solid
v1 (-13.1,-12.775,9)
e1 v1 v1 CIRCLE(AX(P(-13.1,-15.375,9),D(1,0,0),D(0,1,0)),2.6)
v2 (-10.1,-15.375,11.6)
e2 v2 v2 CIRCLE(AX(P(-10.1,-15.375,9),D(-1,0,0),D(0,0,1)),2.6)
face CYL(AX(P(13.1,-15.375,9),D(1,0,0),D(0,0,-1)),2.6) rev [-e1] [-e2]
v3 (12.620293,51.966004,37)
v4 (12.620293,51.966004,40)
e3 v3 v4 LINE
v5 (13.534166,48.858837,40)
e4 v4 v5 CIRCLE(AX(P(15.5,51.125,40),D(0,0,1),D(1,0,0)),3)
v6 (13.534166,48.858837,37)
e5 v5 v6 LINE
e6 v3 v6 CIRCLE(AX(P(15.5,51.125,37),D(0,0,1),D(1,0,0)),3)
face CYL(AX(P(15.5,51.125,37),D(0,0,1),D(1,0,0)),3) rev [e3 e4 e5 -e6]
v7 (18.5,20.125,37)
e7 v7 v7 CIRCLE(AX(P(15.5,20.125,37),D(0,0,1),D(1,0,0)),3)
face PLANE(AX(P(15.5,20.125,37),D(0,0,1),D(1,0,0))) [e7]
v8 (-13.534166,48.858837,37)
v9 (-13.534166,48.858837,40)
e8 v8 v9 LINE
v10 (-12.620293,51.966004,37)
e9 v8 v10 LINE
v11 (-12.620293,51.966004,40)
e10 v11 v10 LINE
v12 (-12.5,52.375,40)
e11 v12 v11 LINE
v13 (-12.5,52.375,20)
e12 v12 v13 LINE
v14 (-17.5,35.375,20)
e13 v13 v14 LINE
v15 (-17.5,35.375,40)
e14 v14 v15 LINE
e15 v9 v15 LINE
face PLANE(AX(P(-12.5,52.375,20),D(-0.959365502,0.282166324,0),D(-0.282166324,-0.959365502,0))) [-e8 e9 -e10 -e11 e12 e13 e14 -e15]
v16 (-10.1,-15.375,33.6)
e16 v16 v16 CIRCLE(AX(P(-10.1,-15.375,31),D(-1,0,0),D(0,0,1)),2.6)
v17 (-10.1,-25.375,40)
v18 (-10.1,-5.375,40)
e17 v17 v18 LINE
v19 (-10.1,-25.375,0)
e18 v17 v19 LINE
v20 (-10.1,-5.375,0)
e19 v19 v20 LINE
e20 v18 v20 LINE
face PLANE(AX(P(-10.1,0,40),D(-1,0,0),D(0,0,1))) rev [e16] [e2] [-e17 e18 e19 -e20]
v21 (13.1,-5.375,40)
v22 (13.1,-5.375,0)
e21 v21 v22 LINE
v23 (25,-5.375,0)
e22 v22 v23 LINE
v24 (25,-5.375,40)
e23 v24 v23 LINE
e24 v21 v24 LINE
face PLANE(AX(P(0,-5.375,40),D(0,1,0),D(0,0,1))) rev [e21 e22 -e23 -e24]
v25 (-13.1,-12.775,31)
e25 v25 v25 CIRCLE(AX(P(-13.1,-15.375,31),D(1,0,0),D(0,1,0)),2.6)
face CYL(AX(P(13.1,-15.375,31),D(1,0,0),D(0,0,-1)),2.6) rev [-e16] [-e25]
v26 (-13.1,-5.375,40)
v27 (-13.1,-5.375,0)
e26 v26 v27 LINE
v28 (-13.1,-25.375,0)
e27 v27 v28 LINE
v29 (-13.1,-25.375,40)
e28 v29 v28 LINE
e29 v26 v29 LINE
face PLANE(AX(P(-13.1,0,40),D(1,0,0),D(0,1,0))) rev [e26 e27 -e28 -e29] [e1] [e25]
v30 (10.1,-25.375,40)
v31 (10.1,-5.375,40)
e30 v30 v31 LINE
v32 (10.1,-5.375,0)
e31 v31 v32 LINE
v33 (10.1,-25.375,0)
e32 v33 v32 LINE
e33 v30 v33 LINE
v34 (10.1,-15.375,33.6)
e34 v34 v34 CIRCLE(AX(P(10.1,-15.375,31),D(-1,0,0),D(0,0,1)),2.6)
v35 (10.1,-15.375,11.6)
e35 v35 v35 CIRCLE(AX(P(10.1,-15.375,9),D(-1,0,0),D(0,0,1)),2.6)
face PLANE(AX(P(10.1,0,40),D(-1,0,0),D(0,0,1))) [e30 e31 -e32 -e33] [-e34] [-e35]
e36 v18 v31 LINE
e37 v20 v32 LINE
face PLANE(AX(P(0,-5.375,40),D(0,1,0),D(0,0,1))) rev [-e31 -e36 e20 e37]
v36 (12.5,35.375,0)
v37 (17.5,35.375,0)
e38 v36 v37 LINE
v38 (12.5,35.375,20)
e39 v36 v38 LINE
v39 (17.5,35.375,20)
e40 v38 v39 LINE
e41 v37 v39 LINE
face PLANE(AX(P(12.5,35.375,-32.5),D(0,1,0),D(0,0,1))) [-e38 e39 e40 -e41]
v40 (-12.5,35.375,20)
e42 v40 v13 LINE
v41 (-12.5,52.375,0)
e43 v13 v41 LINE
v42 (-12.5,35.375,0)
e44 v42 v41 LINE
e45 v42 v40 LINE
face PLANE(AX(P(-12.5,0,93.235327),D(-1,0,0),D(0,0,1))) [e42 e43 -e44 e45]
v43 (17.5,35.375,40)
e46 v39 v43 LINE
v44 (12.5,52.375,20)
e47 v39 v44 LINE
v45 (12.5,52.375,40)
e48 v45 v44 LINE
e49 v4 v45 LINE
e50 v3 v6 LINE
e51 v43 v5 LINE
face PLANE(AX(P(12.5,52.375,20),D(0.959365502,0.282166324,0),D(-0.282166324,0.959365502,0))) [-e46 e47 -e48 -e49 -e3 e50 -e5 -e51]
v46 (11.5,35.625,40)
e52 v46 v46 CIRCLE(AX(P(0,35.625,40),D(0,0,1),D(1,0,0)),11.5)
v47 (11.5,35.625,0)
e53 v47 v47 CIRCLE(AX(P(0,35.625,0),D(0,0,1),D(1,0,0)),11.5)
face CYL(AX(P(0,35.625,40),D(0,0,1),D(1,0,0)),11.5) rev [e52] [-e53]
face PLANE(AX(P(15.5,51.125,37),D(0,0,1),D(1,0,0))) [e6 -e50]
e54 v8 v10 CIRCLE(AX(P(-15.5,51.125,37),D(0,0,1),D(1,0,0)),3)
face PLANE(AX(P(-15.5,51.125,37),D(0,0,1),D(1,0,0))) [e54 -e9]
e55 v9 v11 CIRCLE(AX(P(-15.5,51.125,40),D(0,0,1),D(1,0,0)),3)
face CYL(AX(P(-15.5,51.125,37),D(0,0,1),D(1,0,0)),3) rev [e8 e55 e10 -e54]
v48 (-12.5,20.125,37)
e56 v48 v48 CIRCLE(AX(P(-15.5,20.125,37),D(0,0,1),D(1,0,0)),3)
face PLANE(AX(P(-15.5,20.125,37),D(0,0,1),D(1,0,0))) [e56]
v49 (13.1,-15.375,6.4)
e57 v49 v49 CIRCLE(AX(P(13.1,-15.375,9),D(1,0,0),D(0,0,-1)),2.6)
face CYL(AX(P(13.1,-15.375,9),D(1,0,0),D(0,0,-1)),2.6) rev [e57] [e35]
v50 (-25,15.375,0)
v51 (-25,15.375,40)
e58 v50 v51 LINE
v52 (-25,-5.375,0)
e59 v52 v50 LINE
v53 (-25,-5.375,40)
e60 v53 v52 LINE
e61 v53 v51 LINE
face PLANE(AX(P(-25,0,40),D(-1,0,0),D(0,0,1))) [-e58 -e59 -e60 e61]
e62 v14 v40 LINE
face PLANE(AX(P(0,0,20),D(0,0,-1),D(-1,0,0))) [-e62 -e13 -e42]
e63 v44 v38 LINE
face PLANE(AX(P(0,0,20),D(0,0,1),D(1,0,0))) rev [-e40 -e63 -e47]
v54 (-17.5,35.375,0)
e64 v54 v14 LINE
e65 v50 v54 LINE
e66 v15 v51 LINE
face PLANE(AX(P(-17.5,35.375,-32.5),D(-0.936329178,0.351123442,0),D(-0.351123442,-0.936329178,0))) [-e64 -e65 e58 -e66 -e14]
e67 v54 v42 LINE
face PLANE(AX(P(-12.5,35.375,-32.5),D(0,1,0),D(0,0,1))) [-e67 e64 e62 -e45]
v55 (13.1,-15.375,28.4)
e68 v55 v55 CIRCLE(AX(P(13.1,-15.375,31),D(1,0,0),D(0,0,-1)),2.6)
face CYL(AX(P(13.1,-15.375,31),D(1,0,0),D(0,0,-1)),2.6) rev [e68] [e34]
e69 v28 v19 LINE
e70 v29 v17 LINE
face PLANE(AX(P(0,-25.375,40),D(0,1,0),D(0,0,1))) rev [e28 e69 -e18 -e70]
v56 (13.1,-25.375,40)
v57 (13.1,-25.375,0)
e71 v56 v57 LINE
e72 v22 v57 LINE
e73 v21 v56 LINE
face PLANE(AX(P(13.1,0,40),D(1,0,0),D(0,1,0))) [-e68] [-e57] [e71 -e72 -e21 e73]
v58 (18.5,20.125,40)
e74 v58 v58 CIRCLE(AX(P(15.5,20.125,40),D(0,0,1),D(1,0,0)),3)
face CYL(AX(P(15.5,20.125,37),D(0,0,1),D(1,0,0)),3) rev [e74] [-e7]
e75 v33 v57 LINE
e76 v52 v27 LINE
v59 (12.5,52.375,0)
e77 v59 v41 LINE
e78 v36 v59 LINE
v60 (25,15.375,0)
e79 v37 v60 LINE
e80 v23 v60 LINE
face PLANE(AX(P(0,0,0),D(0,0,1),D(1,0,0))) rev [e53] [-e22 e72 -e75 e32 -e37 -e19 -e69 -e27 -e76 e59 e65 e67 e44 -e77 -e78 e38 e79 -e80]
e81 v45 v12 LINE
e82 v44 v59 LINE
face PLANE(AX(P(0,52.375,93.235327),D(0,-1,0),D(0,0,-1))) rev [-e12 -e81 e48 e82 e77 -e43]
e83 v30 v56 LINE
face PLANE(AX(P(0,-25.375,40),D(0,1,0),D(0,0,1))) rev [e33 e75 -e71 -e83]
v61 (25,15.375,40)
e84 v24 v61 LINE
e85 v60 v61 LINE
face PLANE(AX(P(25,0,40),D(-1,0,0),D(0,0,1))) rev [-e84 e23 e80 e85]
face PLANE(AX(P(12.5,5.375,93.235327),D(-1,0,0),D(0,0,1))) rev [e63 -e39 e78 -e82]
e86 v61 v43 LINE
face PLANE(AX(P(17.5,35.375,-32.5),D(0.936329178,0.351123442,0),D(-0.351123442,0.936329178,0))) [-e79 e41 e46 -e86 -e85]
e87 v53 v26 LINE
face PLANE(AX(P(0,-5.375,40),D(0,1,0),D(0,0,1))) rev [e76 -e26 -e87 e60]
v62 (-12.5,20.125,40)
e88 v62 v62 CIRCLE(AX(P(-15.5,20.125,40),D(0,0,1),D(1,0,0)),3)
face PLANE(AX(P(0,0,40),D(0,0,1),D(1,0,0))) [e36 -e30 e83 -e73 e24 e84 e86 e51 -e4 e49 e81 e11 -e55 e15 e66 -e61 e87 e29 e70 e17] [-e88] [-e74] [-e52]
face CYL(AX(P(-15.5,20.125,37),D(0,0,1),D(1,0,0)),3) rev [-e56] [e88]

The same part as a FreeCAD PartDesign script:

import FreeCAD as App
import Part
import Sketcher
from FreeCAD import Vector
Q = App.Units.Quantity

doc = App.newDocument("Part")
body = doc.addObject("PartDesign::Body", "Body")

sketch1 = body.newObject("Sketcher::SketchObject", "Sketch")
sketch1.AttachmentSupport = (doc.getObject("XY_Plane"), [""])
sketch1.MapMode = "FlatFace"
sketch1.addGeometry(Part.LineSegment(Vector(13.1, -25.4, 0), Vector(13.1, -5.4, 0)), False)
sketch1.addGeometry(Part.LineSegment(Vector(13.1, -5.4, 0), Vector(25, -5.4, 0)), False)
sketch1.addGeometry(Part.LineSegment(Vector(25, -5.4, 0), Vector(25, 5.4, 0)), False)
sketch1.addGeometry(Part.LineSegment(Vector(25, 5.4, 0), Vector(-25, 5.4, 0)), False)
sketch1.addGeometry(Part.LineSegment(Vector(-25, 5.4, 0), Vector(-25, -5.4, 0)), False)
sketch1.addGeometry(Part.LineSegment(Vector(-25, -5.4, 0), Vector(-13.1, -5.4, 0)), False)
sketch1.addGeometry(Part.LineSegment(Vector(-13.1, -5.4, 0), Vector(-13.1, -25.4, 0)), False)
sketch1.addGeometry(Part.LineSegment(Vector(-13.1, -25.4, 0), Vector(-10.1, -25.4, 0)), False)
sketch1.addGeometry(Part.LineSegment(Vector(-10.1, -25.4, 0), Vector(-10.1, -5.4, 0)), False)
sketch1.addGeometry(Part.LineSegment(Vector(-10.1, -5.4, 0), Vector(10.1, -5.4, 0)), False)
sketch1.addGeometry(Part.LineSegment(Vector(10.1, -5.4, 0), Vector(10.1, -25.4, 0)), False)
sketch1.addGeometry(Part.LineSegment(Vector(10.1, -25.4, 0), Vector(13.1, -25.4, 0)), False)
sketch1.addConstraint(Sketcher.Constraint("Coincident", 0, 2, 1, 1))
sketch1.addConstraint(Sketcher.Constraint("Coincident", 1, 2, 2, 1))
sketch1.addConstraint(Sketcher.Constraint("Coincident", 2, 2, 3, 1))
sketch1.addConstraint(Sketcher.Constraint("Coincident", 3, 2, 4, 1))
sketch1.addConstraint(Sketcher.Constraint("Coincident", 4, 2, 5, 1))
sketch1.addConstraint(Sketcher.Constraint("Coincident", 5, 2, 6, 1))
sketch1.addConstraint(Sketcher.Constraint("Coincident", 6, 2, 7, 1))
sketch1.addConstraint(Sketcher.Constraint("Coincident", 7, 2, 8, 1))
sketch1.addConstraint(Sketcher.Constraint("Coincident", 8, 2, 9, 1))
sketch1.addConstraint(Sketcher.Constraint("Coincident", 9, 2, 10, 1))
sketch1.addConstraint(Sketcher.Constraint("Coincident", 10, 2, 11, 1))
sketch1.addConstraint(Sketcher.Constraint("Coincident", 11, 2, 0, 1))
sketch1.addConstraint(Sketcher.Constraint("Vertical", 0))
sketch1.addConstraint(Sketcher.Constraint("Horizontal", 1))
sketch1.addConstraint(Sketcher.Constraint("Vertical", 2))
sketch1.addConstraint(Sketcher.Constraint("Horizontal", 3))
sketch1.addConstraint(Sketcher.Constraint("Vertical", 4))
sketch1.addConstraint(Sketcher.Constraint("Horizontal", 5))
sketch1.addConstraint(Sketcher.Constraint("Vertical", 6))
sketch1.addConstraint(Sketcher.Constraint("Horizontal", 7))
sketch1.addConstraint(Sketcher.Constraint("Vertical", 8))
sketch1.addConstraint(Sketcher.Constraint("Horizontal", 9))
sketch1.addConstraint(Sketcher.Constraint("Vertical", 10))
sketch1.addConstraint(Sketcher.Constraint("Horizontal", 11))
sketch1.addConstraint(Sketcher.Constraint("Symmetric", 1, 2, 3, 2, -1, 1))
sketch1.addConstraint(Sketcher.Constraint("Symmetric", 0, 2, 5, 2, -2))
sketch1.addConstraint(Sketcher.Constraint("Symmetric", 7, 2, 10, 2, -2))
sketch1.addConstraint(Sketcher.Constraint("Horizontal", 5, 2, 8, 2))
sketch1.addConstraint(Sketcher.Constraint("DistanceX", 3, 2, 3, 1, Q("50 mm")))
sketch1.addConstraint(Sketcher.Constraint("DistanceX", 7, 1, 7, 2, Q("3 mm")))
sketch1.addConstraint(Sketcher.Constraint("DistanceY", 0, 1, 0, 2, Q("20 mm")))
sketch1.addConstraint(Sketcher.Constraint("DistanceX", 1, 1, 1, 2, Q("11.9 mm")))
sketch1.addConstraint(Sketcher.Constraint("DistanceY", 2, 1, 2, 2, Q("10.75 mm")))
pad1 = body.newObject("PartDesign::Pad", "Pad")
pad1.Profile = sketch1
pad1.Length = 40

sketch2 = body.newObject("Sketcher::SketchObject", "Sketch001")
sketch2.AttachmentSupport = (doc.getObject("XY_Plane"), [""])
sketch2.MapMode = "FlatFace"
sketch2.addGeometry(Part.LineSegment(Vector(12, 52, 0), Vector(12, 5, 0)), False)
sketch2.addGeometry(Part.LineSegment(Vector(12, 5, 0), Vector(-12, 5, 0)), False)
sketch2.addGeometry(Part.LineSegment(Vector(-12, 5, 0), Vector(-12, 52, 0)), False)
sketch2.addGeometry(Part.LineSegment(Vector(-12, 52, 0), Vector(12, 52, 0)), False)
sketch2.addConstraint(Sketcher.Constraint("Coincident", 0, 2, 1, 1))
sketch2.addConstraint(Sketcher.Constraint("Coincident", 1, 2, 2, 1))
sketch2.addConstraint(Sketcher.Constraint("Coincident", 2, 2, 3, 1))
sketch2.addConstraint(Sketcher.Constraint("Coincident", 3, 2, 0, 1))
sketch2.addConstraint(Sketcher.Constraint("Vertical", 0))
sketch2.addConstraint(Sketcher.Constraint("Horizontal", 1))
sketch2.addConstraint(Sketcher.Constraint("Vertical", 2))
sketch2.addConstraint(Sketcher.Constraint("Horizontal", 3))
sketch2.addConstraint(Sketcher.Constraint("DistanceX", 1, 2, 1, 1, Q("25 mm")))
sketch2.addConstraint(Sketcher.Constraint("DistanceY", 0, 2, 0, 1, Q("47 mm")))
sketch2.addConstraint(Sketcher.Constraint("DistanceX", -1, 1, 0, 2, Q("12.5 mm")))
sketch2.addConstraint(Sketcher.Constraint("DistanceY", -1, 1, 0, 2, Q("5.375 mm")))
pad2 = body.newObject("PartDesign::Pad", "Pad001")
pad2.Profile = sketch2
pad2.Length = 40

sketch3 = body.newObject("Sketcher::SketchObject", "Sketch002")
sketch3.AttachmentSupport = (doc.getObject("XY_Plane"), [""])
sketch3.MapMode = "FlatFace"
sketch3.AttachmentOffset = App.Placement(Vector(0, 0, 40), App.Rotation())
sketch3.addGeometry(Part.Circle(Vector(0, 36, 0), Vector(0, 0, 1), 12), False)
sketch3.addConstraint(Sketcher.Constraint("PointOnObject", 0, 3, -2))
sketch3.addConstraint(Sketcher.Constraint("Diameter", 0, Q("23 mm")))
sketch3.addConstraint(Sketcher.Constraint("DistanceY", -1, 1, 0, 3, Q("35.625 mm")))
doc.recompute()
hole = body.newObject("PartDesign::Hole", "Hole")
hole.Profile = sketch3
hole.ThreadType = "None"
hole.Diameter = 23
hole.DepthType = "ThroughAll"

sketch4 = body.newObject("Sketcher::SketchObject", "Sketch003")
sketch4.AttachmentSupport = (doc.getObject("XY_Plane"), [""])
sketch4.MapMode = "FlatFace"
sketch4.AttachmentOffset = App.Placement(Vector(0, 0, 40), App.Rotation())
sketch4.addGeometry(Part.LineSegment(Vector(18, 35, 0), Vector(12, 35, 0)), False)
sketch4.addGeometry(Part.LineSegment(Vector(12, 35, 0), Vector(12, 5, 0)), False)
sketch4.addGeometry(Part.LineSegment(Vector(12, 5, 0), Vector(25, 5, 0)), False)
sketch4.addGeometry(Part.LineSegment(Vector(25, 5, 0), Vector(25, 15, 0)), False)
sketch4.addGeometry(Part.LineSegment(Vector(25, 15, 0), Vector(18, 35, 0)), False)
sketch4.addGeometry(Part.LineSegment(Vector(-12, 5, 0), Vector(-12, 35, 0)), False)
sketch4.addGeometry(Part.LineSegment(Vector(-12, 35, 0), Vector(-18, 35, 0)), False)
sketch4.addGeometry(Part.LineSegment(Vector(-18, 35, 0), Vector(-25, 15, 0)), False)
sketch4.addGeometry(Part.LineSegment(Vector(-25, 15, 0), Vector(-25, 5, 0)), False)
sketch4.addGeometry(Part.LineSegment(Vector(-25, 5, 0), Vector(-12, 5, 0)), False)
sketch4.addConstraint(Sketcher.Constraint("Coincident", 0, 2, 1, 1))
sketch4.addConstraint(Sketcher.Constraint("Coincident", 1, 2, 2, 1))
sketch4.addConstraint(Sketcher.Constraint("Coincident", 2, 2, 3, 1))
sketch4.addConstraint(Sketcher.Constraint("Coincident", 3, 2, 4, 1))
sketch4.addConstraint(Sketcher.Constraint("Coincident", 4, 2, 0, 1))
sketch4.addConstraint(Sketcher.Constraint("Coincident", 5, 2, 6, 1))
sketch4.addConstraint(Sketcher.Constraint("Coincident", 6, 2, 7, 1))
sketch4.addConstraint(Sketcher.Constraint("Coincident", 7, 2, 8, 1))
sketch4.addConstraint(Sketcher.Constraint("Coincident", 8, 2, 9, 1))
sketch4.addConstraint(Sketcher.Constraint("Coincident", 9, 2, 5, 1))
sketch4.addConstraint(Sketcher.Constraint("Horizontal", 0))
sketch4.addConstraint(Sketcher.Constraint("Vertical", 1))
sketch4.addConstraint(Sketcher.Constraint("Horizontal", 2))
sketch4.addConstraint(Sketcher.Constraint("Vertical", 3))
sketch4.addConstraint(Sketcher.Constraint("Vertical", 5))
sketch4.addConstraint(Sketcher.Constraint("Horizontal", 6))
sketch4.addConstraint(Sketcher.Constraint("Vertical", 8))
sketch4.addConstraint(Sketcher.Constraint("Horizontal", 9))
sketch4.addConstraint(Sketcher.Constraint("Symmetric", 0, 2, 5, 2, -2))
sketch4.addConstraint(Sketcher.Constraint("Symmetric", 3, 2, 7, 2, -2))
sketch4.addConstraint(Sketcher.Constraint("Horizontal", 2, 2, 8, 2))
sketch4.addConstraint(Sketcher.Constraint("Equal", 0, 6))
sketch4.addConstraint(Sketcher.Constraint("DistanceX", 0, 2, 0, 1, Q("5 mm")))
sketch4.addConstraint(Sketcher.Constraint("DistanceY", 1, 2, 1, 1, Q("30 mm")))
sketch4.addConstraint(Sketcher.Constraint("DistanceY", 3, 1, 3, 2, Q("10 mm")))
sketch4.addConstraint(Sketcher.Constraint("DistanceX", 2, 1, 2, 2, Q("12.5 mm")))
sketch4.addConstraint(Sketcher.Constraint("DistanceX", -1, 1, 2, 2, Q("25 mm")))
sketch4.addConstraint(Sketcher.Constraint("DistanceY", -1, 1, 0, 2, Q("35.375 mm")))
pad3 = body.newObject("PartDesign::Pad", "Pad002")
pad3.Profile = sketch4
pad3.Length = 40
pad3.Reversed = True

sketch5 = body.newObject("Sketcher::SketchObject", "Sketch004")
sketch5.AttachmentSupport = (doc.getObject("XY_Plane"), [""])
sketch5.MapMode = "FlatFace"
sketch5.AttachmentOffset = App.Placement(Vector(0, 0, 40), App.Rotation())
sketch5.addGeometry(Part.LineSegment(Vector(18, 35, 0), Vector(12, 52, 0)), False)
sketch5.addGeometry(Part.LineSegment(Vector(12, 52, 0), Vector(12, 35, 0)), False)
sketch5.addGeometry(Part.LineSegment(Vector(12, 35, 0), Vector(18, 35, 0)), False)
sketch5.addGeometry(Part.LineSegment(Vector(-12, 52, 0), Vector(-18, 35, 0)), False)
sketch5.addGeometry(Part.LineSegment(Vector(-18, 35, 0), Vector(-12, 35, 0)), False)
sketch5.addGeometry(Part.LineSegment(Vector(-12, 35, 0), Vector(-12, 52, 0)), False)
sketch5.addConstraint(Sketcher.Constraint("Coincident", 0, 2, 1, 1))
sketch5.addConstraint(Sketcher.Constraint("Coincident", 1, 2, 2, 1))
sketch5.addConstraint(Sketcher.Constraint("Coincident", 2, 2, 0, 1))
sketch5.addConstraint(Sketcher.Constraint("Coincident", 3, 2, 4, 1))
sketch5.addConstraint(Sketcher.Constraint("Coincident", 4, 2, 5, 1))
sketch5.addConstraint(Sketcher.Constraint("Coincident", 5, 2, 3, 1))
sketch5.addConstraint(Sketcher.Constraint("Vertical", 1))
sketch5.addConstraint(Sketcher.Constraint("Horizontal", 2))
sketch5.addConstraint(Sketcher.Constraint("Horizontal", 4))
sketch5.addConstraint(Sketcher.Constraint("Vertical", 5))
sketch5.addConstraint(Sketcher.Constraint("Symmetric", 2, 2, 3, 2, -2))
sketch5.addConstraint(Sketcher.Constraint("Symmetric", 0, 2, 5, 2, -2))
sketch5.addConstraint(Sketcher.Constraint("DistanceX", 2, 1, 2, 2, Q("5 mm")))
sketch5.addConstraint(Sketcher.Constraint("DistanceY", 1, 2, 1, 1, Q("17 mm")))
sketch5.addConstraint(Sketcher.Constraint("DistanceX", 3, 2, 1, 2, Q("30 mm")))
sketch5.addConstraint(Sketcher.Constraint("DistanceY", -1, 1, 0, 2, Q("52.375 mm")))
pad4 = body.newObject("PartDesign::Pad", "Pad003")
pad4.Profile = sketch5
pad4.Length = 20
pad4.Reversed = True

sketch6 = body.newObject("Sketcher::SketchObject", "Sketch005")
sketch6.AttachmentSupport = (doc.getObject("YZ_Plane"), [""])
sketch6.MapMode = "FlatFace"
sketch6.AttachmentOffset = App.Placement(Vector(0, 0, 13.1), App.Rotation())
sketch6.addGeometry(Part.Circle(Vector(-15.4, 31, 0), Vector(0, 0, 1), 2.6), False)
sketch6.addGeometry(Part.Circle(Vector(-15.4, 9, 0), Vector(0, 0, 1), 2.6), False)
sketch6.addConstraint(Sketcher.Constraint("Equal", 0, 1))
sketch6.addConstraint(Sketcher.Constraint("Vertical", 0, 3, 1, 3))
sketch6.addConstraint(Sketcher.Constraint("Diameter", 0, Q("5.2 mm")))
sketch6.addConstraint(Sketcher.Constraint("DistanceY", -1, 1, 0, 3, Q("31 mm")))
sketch6.addConstraint(Sketcher.Constraint("DistanceY", -1, 1, 1, 3, Q("9 mm")))
sketch6.addConstraint(Sketcher.Constraint("DistanceX", 0, 3, -1, 1, Q("15.375 mm")))
doc.recompute()
hole2 = body.newObject("PartDesign::Hole", "Hole001")
hole2.Profile = sketch6
hole2.ThreadType = "None"
hole2.Diameter = 5.2
hole2.DepthType = "ThroughAll"

sketch7 = body.newObject("Sketcher::SketchObject", "Sketch006")
sketch7.AttachmentSupport = (doc.getObject("XY_Plane"), [""])
sketch7.MapMode = "FlatFace"
sketch7.AttachmentOffset = App.Placement(Vector(0, 0, 40), App.Rotation())
sketch7.addGeometry(Part.Circle(Vector(-15.5, 51.1, 0), Vector(0, 0, 1), 3), False)
sketch7.addGeometry(Part.Circle(Vector(15.5, 51.1, 0), Vector(0, 0, 1), 3), False)
sketch7.addGeometry(Part.Circle(Vector(-15.5, 20.1, 0), Vector(0, 0, 1), 3), False)
sketch7.addGeometry(Part.Circle(Vector(15.5, 20.1, 0), Vector(0, 0, 1), 3), False)
sketch7.addConstraint(Sketcher.Constraint("Equal", 0, 1))
sketch7.addConstraint(Sketcher.Constraint("Equal", 1, 2))
sketch7.addConstraint(Sketcher.Constraint("Equal", 2, 3))
sketch7.addConstraint(Sketcher.Constraint("Symmetric", 0, 3, 1, 3, -2))
sketch7.addConstraint(Sketcher.Constraint("Symmetric", 2, 3, 3, 3, -2))
sketch7.addConstraint(Sketcher.Constraint("Vertical", 0, 3, 2, 3))
sketch7.addConstraint(Sketcher.Constraint("Diameter", 0, Q("6 mm")))
sketch7.addConstraint(Sketcher.Constraint("DistanceX", 0, 3, 1, 3, Q("31 mm")))
sketch7.addConstraint(Sketcher.Constraint("DistanceY", 2, 3, 0, 3, Q("31 mm")))
sketch7.addConstraint(Sketcher.Constraint("DistanceY", -1, 1, 0, 3, Q("51.125 mm")))
pocket1 = body.newObject("PartDesign::Pocket", "Pocket")
pocket1.Profile = sketch7
pocket1.Length = 3

doc.recompute()
